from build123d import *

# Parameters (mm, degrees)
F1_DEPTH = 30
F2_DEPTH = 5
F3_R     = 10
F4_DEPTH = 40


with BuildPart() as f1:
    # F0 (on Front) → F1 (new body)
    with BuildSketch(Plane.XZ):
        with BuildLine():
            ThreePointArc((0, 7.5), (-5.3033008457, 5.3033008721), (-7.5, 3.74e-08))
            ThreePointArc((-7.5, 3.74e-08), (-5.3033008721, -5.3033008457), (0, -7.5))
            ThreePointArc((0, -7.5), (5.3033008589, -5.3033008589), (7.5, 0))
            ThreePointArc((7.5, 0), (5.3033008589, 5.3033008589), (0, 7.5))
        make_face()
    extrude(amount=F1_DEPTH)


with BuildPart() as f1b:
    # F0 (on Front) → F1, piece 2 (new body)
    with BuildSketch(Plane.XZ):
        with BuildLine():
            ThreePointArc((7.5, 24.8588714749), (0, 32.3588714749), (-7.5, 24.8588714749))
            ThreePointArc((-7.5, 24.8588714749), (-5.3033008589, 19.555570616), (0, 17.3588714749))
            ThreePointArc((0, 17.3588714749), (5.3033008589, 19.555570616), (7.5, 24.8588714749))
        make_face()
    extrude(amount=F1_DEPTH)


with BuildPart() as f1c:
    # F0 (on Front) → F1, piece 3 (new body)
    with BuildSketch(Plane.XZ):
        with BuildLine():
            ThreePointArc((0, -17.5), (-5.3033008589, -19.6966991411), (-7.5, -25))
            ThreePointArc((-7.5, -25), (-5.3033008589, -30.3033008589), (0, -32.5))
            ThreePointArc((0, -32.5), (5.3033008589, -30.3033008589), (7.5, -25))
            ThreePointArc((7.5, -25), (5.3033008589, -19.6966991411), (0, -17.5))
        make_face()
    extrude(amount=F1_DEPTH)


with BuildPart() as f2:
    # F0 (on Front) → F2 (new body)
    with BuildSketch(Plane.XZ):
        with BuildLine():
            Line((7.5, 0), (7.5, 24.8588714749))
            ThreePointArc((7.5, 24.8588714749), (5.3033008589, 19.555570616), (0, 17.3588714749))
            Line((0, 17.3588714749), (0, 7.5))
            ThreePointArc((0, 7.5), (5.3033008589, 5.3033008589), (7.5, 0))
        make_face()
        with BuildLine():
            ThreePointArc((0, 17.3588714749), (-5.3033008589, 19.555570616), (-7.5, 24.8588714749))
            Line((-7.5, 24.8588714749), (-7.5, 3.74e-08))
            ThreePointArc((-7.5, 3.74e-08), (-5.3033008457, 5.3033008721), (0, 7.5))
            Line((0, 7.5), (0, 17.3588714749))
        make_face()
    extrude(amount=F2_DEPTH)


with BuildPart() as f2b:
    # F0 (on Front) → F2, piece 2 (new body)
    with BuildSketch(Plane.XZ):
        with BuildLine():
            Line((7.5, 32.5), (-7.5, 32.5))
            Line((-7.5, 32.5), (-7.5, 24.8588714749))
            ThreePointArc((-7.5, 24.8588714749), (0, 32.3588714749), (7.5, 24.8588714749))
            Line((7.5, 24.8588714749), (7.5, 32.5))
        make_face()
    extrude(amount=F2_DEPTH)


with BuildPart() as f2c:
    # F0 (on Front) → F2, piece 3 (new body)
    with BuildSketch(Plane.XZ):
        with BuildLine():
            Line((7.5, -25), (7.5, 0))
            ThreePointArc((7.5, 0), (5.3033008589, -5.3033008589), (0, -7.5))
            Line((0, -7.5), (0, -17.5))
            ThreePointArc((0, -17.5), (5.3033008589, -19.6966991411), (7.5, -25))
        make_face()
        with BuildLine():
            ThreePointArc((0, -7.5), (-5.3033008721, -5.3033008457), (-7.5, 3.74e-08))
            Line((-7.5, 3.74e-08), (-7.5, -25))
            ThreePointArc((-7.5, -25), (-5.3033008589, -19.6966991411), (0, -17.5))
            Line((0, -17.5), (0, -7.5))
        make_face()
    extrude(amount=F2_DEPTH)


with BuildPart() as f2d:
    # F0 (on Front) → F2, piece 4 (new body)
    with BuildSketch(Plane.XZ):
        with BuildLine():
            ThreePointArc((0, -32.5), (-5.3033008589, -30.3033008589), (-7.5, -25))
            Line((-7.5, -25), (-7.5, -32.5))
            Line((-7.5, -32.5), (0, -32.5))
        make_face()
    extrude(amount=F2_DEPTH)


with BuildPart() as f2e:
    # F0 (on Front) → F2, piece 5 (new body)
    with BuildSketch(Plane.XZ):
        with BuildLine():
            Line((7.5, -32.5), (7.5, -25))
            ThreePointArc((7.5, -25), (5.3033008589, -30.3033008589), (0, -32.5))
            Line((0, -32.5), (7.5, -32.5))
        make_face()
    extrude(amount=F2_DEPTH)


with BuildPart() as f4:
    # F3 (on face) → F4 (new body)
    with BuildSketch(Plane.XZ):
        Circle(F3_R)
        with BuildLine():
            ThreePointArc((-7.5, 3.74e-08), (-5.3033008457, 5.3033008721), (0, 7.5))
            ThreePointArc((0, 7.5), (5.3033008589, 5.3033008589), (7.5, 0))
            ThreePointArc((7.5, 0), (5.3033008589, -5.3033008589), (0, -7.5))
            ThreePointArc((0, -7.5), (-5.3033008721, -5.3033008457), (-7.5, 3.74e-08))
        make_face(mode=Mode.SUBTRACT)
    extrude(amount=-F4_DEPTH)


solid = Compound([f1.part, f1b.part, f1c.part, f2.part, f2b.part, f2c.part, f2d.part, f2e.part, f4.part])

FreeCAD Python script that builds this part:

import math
import FreeCAD as App
import Part
import Sketcher
from FreeCAD import Vector
Q = App.Units.Quantity

doc = App.newDocument("Part")
body = doc.addObject("PartDesign::Body", "Body")

sketch1 = body.newObject("Sketcher::SketchObject", "Sketch")
sketch1.AttachmentSupport = (doc.getObject("XZ_Plane"), [""])
sketch1.MapMode = "FlatFace"
sketch1.addGeometry(Part.Circle(Vector(0, 0, 0), Vector(0, 0, 1), 8), False)
sketch1.addConstraint(Sketcher.Constraint("Coincident", 0, 3, -1, 1))
sketch1.addConstraint(Sketcher.Constraint("Diameter", 0, Q("15 mm")))
pad1 = body.newObject("PartDesign::Pad", "Pad")
pad1.Profile = sketch1
pad1.Length = 30
body2 = doc.addObject("PartDesign::Body", "Body001")

sketch2 = body2.newObject("Sketcher::SketchObject", "Sketch001")
sketch2.AttachmentSupport = (doc.getObject("XZ_Plane001"), [""])
sketch2.MapMode = "FlatFace"
sketch2.addGeometry(Part.Circle(Vector(0, 25, 0), Vector(0, 0, 1), 8), False)
sketch2.addConstraint(Sketcher.Constraint("PointOnObject", 0, 3, -2))
sketch2.addConstraint(Sketcher.Constraint("Diameter", 0, Q("15 mm")))
sketch2.addConstraint(Sketcher.Constraint("DistanceY", -1, 1, 0, 3, Q("24.858871 mm")))
pad2 = body2.newObject("PartDesign::Pad", "Pad001")
pad2.Profile = sketch2
pad2.Length = 30
body3 = doc.addObject("PartDesign::Body", "Body002")

sketch3 = body3.newObject("Sketcher::SketchObject", "Sketch002")
sketch3.AttachmentSupport = (doc.getObject("XZ_Plane002"), [""])
sketch3.MapMode = "FlatFace"
sketch3.addGeometry(Part.Circle(Vector(0, -25, 0), Vector(0, 0, 1), 8), False)
sketch3.addConstraint(Sketcher.Constraint("PointOnObject", 0, 3, -2))
sketch3.addConstraint(Sketcher.Constraint("Diameter", 0, Q("15 mm")))
sketch3.addConstraint(Sketcher.Constraint("DistanceY", 0, 3, -1, 1, Q("25 mm")))
pad3 = body3.newObject("PartDesign::Pad", "Pad002")
pad3.Profile = sketch3
pad3.Length = 30
body4 = doc.addObject("PartDesign::Body", "Body003")

sketch4 = body4.newObject("Sketcher::SketchObject", "Sketch003")
sketch4.AttachmentSupport = (doc.getObject("XZ_Plane003"), [""])
sketch4.MapMode = "FlatFace"
sketch4.addGeometry(Part.LineSegment(Vector(8, 0, 0), Vector(8, 25, 0)), False)
sketch4.addGeometry(Part.ArcOfCircle(Part.Circle(Vector(0, 25, 0), Vector(0, 0, 1), 8), math.radians(180), math.radians(360)), False)
sketch4.addGeometry(Part.LineSegment(Vector(-8, 25, 0), Vector(-8, 0, 0)), False)
sketch4.addGeometry(Part.ArcOfCircle(Part.Circle(Vector(0, 0, 0), Vector(0, 0, 1), 8), math.radians(0), math.radians(180)), False)
sketch4.addConstraint(Sketcher.Constraint("Tangent", 0, 2, 1, 2))
sketch4.addConstraint(Sketcher.Constraint("Tangent", 1, 1, 2, 1))
sketch4.addConstraint(Sketcher.Constraint("Tangent", 2, 2, 3, 2))
sketch4.addConstraint(Sketcher.Constraint("Tangent", 3, 1, 0, 1))
sketch4.addConstraint(Sketcher.Constraint("Vertical", 0))
sketch4.addConstraint(Sketcher.Constraint("Vertical", 2))
sketch4.addConstraint(Sketcher.Constraint("Coincident", 3, 3, -1, 1))
sketch4.addConstraint(Sketcher.Constraint("Radius", 1, Q("7.5 mm")))
sketch4.addConstraint(Sketcher.Constraint("DistanceY", 0, 1, 0, 2, Q("24.858871 mm")))
pad4 = body4.newObject("PartDesign::Pad", "Pad003")
pad4.Profile = sketch4
pad4.Length = 5
body5 = doc.addObject("PartDesign::Body", "Body004")

sketch5 = body5.newObject("Sketcher::SketchObject", "Sketch004")
sketch5.AttachmentSupport = (doc.getObject("XZ_Plane004"), [""])
sketch5.MapMode = "FlatFace"
sketch5.addGeometry(Part.LineSegment(Vector(8, 32, 0), Vector(-8, 32, 0)), False)
sketch5.addGeometry(Part.LineSegment(Vector(-8, 32, 0), Vector(-8, 25, 0)), False)
sketch5.addGeometry(Part.ArcOfCircle(Part.Circle(Vector(0, 25, 0), Vector(0, 0, 1), 8), math.radians(0), math.radians(180)), False)
sketch5.addGeometry(Part.LineSegment(Vector(8, 25, 0), Vector(8, 32, 0)), False)
sketch5.addConstraint(Sketcher.Constraint("Coincident", 0, 2, 1, 1))
sketch5.addConstraint(Sketcher.Constraint("Tangent", 1, 2, 2, 2))
sketch5.addConstraint(Sketcher.Constraint("Tangent", 2, 1, 3, 1))
sketch5.addConstraint(Sketcher.Constraint("Coincident", 3, 2, 0, 1))
sketch5.addConstraint(Sketcher.Constraint("Horizontal", 0))
sketch5.addConstraint(Sketcher.Constraint("Vertical", 1))
sketch5.addConstraint(Sketcher.Constraint("Vertical", 3))
sketch5.addConstraint(Sketcher.Constraint("PointOnObject", 2, 3, -2))
sketch5.addConstraint(Sketcher.Constraint("Radius", 2, Q("7.5 mm")))
sketch5.addConstraint(Sketcher.Constraint("DistanceY", -1, 1, 0, 2, Q("32.5 mm")))
sketch5.addConstraint(Sketcher.Constraint("DistanceY", 1, 2, 1, 1, Q("7.641129 mm")))
pad5 = body5.newObject("PartDesign::Pad", "Pad004")
pad5.Profile = sketch5
pad5.Length = 5
body6 = doc.addObject("PartDesign::Body", "Body005")

sketch6 = body6.newObject("Sketcher::SketchObject", "Sketch005")
sketch6.AttachmentSupport = (doc.getObject("XZ_Plane005"), [""])
sketch6.MapMode = "FlatFace"
sketch6.addGeometry(Part.LineSegment(Vector(8, -25, 0), Vector(8, 0, 0)), False)
sketch6.addGeometry(Part.ArcOfCircle(Part.Circle(Vector(0, 0, 0), Vector(0, 0, 1), 8), math.radians(180), math.radians(360)), False)
sketch6.addGeometry(Part.LineSegment(Vector(-8, 0, 0), Vector(-8, -25, 0)), False)
sketch6.addGeometry(Part.ArcOfCircle(Part.Circle(Vector(0, -25, 0), Vector(0, 0, 1), 8), math.radians(0), math.radians(180)), False)
sketch6.addConstraint(Sketcher.Constraint("Tangent", 0, 2, 1, 2))
sketch6.addConstraint(Sketcher.Constraint("Tangent", 1, 1, 2, 1))
sketch6.addConstraint(Sketcher.Constraint("Tangent", 2, 2, 3, 2))
sketch6.addConstraint(Sketcher.Constraint("Tangent", 3, 1, 0, 1))
sketch6.addConstraint(Sketcher.Constraint("Vertical", 0))
sketch6.addConstraint(Sketcher.Constraint("Vertical", 2))
sketch6.addConstraint(Sketcher.Constraint("Coincident", 1, 3, -1, 1))
sketch6.addConstraint(Sketcher.Constraint("Radius", 1, Q("7.5 mm")))
sketch6.addConstraint(Sketcher.Constraint("DistanceY", 0, 1, 0, 2, Q("25 mm")))
pad6 = body6.newObject("PartDesign::Pad", "Pad005")
pad6.Profile = sketch6
pad6.Length = 5
body7 = doc.addObject("PartDesign::Body", "Body006")

sketch7 = body7.newObject("Sketcher::SketchObject", "Sketch006")
sketch7.AttachmentSupport = (doc.getObject("XZ_Plane006"), [""])
sketch7.MapMode = "FlatFace"
sketch7.addGeometry(Part.ArcOfCircle(Part.Circle(Vector(0, -25, 0), Vector(0, 0, 1), 8), math.radians(180), math.radians(270)), False)
sketch7.addGeometry(Part.LineSegment(Vector(-8, -25, 0), Vector(-8, -32, 0)), False)
sketch7.addGeometry(Part.LineSegment(Vector(-8, -32, 0), Vector(0, -32, 0)), False)
sketch7.addConstraint(Sketcher.Constraint("Tangent", 0, 1, 1, 1))
sketch7.addConstraint(Sketcher.Constraint("Coincident", 1, 2, 2, 1))
sketch7.addConstraint(Sketcher.Constraint("Tangent", 2, 2, 0, 2))
sketch7.addConstraint(Sketcher.Constraint("Vertical", 1))
sketch7.addConstraint(Sketcher.Constraint("Horizontal", 2))
sketch7.addConstraint(Sketcher.Constraint("PointOnObject", 0, 3, -2))
sketch7.addConstraint(Sketcher.Constraint("Radius", 0, Q("7.5 mm")))
sketch7.addConstraint(Sketcher.Constraint("DistanceY", 0, 3, -1, 1, Q("25 mm")))
pad7 = body7.newObject("PartDesign::Pad", "Pad006")
pad7.Profile = sketch7
pad7.Length = 5
body8 = doc.addObject("PartDesign::Body", "Body007")

sketch8 = body8.newObject("Sketcher::SketchObject", "Sketch007")
sketch8.AttachmentSupport = (doc.getObject("XZ_Plane007"), [""])
sketch8.MapMode = "FlatFace"
sketch8.addGeometry(Part.LineSegment(Vector(8, -32, 0), Vector(8, -25, 0)), False)
sketch8.addGeometry(Part.ArcOfCircle(Part.Circle(Vector(0, -25, 0), Vector(0, 0, 1), 8), math.radians(-90), math.radians(0)), False)
sketch8.addGeometry(Part.LineSegment(Vector(0, -32, 0), Vector(8, -32, 0)), False)
sketch8.addConstraint(Sketcher.Constraint("Tangent", 0, 2, 1, 2))
sketch8.addConstraint(Sketcher.Constraint("Tangent", 1, 1, 2, 1))
sketch8.addConstraint(Sketcher.Constraint("Coincident", 2, 2, 0, 1))
sketch8.addConstraint(Sketcher.Constraint("Vertical", 0))
sketch8.addConstraint(Sketcher.Constraint("Horizontal", 2))
sketch8.addConstraint(Sketcher.Constraint("PointOnObject", 1, 3, -2))
sketch8.addConstraint(Sketcher.Constraint("Radius", 1, Q("7.5 mm")))
sketch8.addConstraint(Sketcher.Constraint("DistanceY", 1, 3, -1, 1, Q("25 mm")))
pad8 = body8.newObject("PartDesign::Pad", "Pad007")
pad8.Profile = sketch8
pad8.Length = 5
body9 = doc.addObject("PartDesign::Body", "Body008")

sketch9 = body9.newObject("Sketcher::SketchObject", "Sketch008")
sketch9.AttachmentSupport = (doc.getObject("XZ_Plane008"), [""])
sketch9.MapMode = "FlatFace"
sketch9.addGeometry(Part.Circle(Vector(0, 0, 0), Vector(0, 0, 1), 10), False)
sketch9.addGeometry(Part.Circle(Vector(0, 0, 0), Vector(0, 0, 1), 8), False)
sketch9.addConstraint(Sketcher.Constraint("Coincident", 0, 3, -1, 1))
sketch9.addConstraint(Sketcher.Constraint("Coincident", 1, 3, -1, 1))
sketch9.addConstraint(Sketcher.Constraint("Diameter", 0, Q("20 mm")))
sketch9.addConstraint(Sketcher.Constraint("Diameter", 1, Q("15 mm")))
pad9 = body9.newObject("PartDesign::Pad", "Pad008")
pad9.Profile = sketch9
pad9.Length = 40
pad9.Reversed = True

doc.recompute()
